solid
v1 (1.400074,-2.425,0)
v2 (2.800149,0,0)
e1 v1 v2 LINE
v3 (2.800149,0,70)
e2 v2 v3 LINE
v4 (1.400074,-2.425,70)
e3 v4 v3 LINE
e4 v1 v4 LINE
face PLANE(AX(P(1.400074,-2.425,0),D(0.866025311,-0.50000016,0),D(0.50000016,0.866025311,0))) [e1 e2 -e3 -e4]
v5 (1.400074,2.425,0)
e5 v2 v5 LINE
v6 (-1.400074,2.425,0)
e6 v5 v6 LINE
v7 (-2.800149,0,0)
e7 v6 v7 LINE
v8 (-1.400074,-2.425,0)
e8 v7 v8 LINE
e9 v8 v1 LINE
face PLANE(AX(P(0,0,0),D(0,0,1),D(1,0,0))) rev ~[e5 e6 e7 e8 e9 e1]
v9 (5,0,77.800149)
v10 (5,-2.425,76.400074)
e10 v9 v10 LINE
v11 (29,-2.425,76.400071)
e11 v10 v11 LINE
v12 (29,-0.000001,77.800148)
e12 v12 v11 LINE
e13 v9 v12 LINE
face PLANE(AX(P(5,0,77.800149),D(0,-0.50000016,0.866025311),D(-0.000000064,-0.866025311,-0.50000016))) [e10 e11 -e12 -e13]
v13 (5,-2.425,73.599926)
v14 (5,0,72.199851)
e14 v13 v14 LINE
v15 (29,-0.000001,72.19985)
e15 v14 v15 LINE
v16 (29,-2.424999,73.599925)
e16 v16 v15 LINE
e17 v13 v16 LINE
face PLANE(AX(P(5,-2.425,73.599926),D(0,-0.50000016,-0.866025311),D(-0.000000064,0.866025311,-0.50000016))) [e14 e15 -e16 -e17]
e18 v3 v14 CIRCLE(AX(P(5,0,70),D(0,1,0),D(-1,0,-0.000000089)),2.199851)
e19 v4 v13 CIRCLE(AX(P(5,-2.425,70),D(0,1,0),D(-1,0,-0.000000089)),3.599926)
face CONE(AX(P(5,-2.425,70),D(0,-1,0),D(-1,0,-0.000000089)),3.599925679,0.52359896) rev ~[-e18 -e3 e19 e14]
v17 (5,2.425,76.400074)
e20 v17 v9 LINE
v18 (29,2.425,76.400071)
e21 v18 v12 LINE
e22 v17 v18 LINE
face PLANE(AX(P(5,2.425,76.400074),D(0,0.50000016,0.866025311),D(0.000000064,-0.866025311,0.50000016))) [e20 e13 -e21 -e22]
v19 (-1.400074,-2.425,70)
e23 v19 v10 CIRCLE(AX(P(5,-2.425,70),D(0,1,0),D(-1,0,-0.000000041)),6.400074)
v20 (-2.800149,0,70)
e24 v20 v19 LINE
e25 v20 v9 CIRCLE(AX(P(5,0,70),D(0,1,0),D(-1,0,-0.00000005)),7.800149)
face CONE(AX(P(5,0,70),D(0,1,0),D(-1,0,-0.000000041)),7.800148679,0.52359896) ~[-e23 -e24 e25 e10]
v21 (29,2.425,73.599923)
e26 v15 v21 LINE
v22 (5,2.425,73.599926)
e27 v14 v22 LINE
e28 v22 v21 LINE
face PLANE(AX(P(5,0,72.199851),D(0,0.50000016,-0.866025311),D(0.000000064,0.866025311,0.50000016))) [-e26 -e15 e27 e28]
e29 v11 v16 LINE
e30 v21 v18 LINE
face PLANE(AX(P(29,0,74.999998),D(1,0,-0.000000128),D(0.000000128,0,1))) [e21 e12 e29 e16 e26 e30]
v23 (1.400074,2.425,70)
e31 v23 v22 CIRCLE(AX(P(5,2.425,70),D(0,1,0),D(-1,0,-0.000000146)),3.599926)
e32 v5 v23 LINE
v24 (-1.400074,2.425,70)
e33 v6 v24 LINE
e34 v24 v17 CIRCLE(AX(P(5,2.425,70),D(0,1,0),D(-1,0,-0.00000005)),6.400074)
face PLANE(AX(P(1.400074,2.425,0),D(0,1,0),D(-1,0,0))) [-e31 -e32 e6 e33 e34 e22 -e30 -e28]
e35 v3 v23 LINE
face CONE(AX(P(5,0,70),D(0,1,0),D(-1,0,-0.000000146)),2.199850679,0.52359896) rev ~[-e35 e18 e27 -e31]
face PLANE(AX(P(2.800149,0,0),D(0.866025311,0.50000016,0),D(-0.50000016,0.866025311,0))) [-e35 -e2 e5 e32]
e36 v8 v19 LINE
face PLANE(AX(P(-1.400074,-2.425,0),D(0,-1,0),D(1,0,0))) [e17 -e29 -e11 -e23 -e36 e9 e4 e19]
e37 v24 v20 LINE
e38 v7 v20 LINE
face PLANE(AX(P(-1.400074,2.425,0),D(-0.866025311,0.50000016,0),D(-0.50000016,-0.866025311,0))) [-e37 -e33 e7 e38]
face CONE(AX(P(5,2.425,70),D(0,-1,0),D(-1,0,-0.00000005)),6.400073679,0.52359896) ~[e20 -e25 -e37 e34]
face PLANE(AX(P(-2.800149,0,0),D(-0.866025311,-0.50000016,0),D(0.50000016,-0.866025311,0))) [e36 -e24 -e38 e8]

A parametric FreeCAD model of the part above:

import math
import FreeCAD as App
import Part
import Sketcher
Q = App.Units.Quantity


def add_polygon(sketch, points):
    """Adds a closed chain of lines whose ends are joined by coincident constraints."""
    first, n = sketch.GeometryCount, len(points)
    for a, b in zip(points, points[1:] + points[:1]):
        sketch.addGeometry(Part.LineSegment(App.Vector(*a, 0), App.Vector(*b, 0)), False)
    for i in range(n):
        sketch.addConstraint(Sketcher.Constraint("Coincident", first + i, 2, first + (i + 1) % n, 1))

doc = App.newDocument("Part")
body = doc.addObject("PartDesign::Body", "Body")

# Sketch on XY plane
sketch1 = body.newObject("Sketcher::SketchObject", "Sketch")
sketch1.AttachmentSupport = (doc.getObject("XY_Plane"), [""])
sketch1.MapMode = "FlatFace"
add_polygon(sketch1, [(-1.4, 2.4), (-2.8, 0), (-1.4, -2.4), (1.4, -2.4), (2.8, 0), (1.4, 2.4)])  # lines 0-5
sketch1.addConstraint([
    Sketcher.Constraint("Horizontal", 2),
    Sketcher.Constraint("Horizontal", 5),
    Sketcher.Constraint("Symmetric", 0, 2, 3, 2, -1, 1),
    Sketcher.Constraint("Symmetric", 1, 2, 4, 2, -1, 1),
    Sketcher.Constraint("PointOnObject", 0, 2, -1),
    Sketcher.Constraint("Parallel", 0, 3),
    Sketcher.Constraint("Vertical", 2, 2, 4, 2),
    Sketcher.Constraint("Angle", 0, Q("-120.000011 deg")),
    Sketcher.Constraint("DistanceY", 2, 2, 4, 2, 4.85),
    Sketcher.Constraint("DistanceX", 2, 1, 2, 2, 2.800148),
])

# Sketch on XZ plane
sketch2 = body.newObject("Sketcher::SketchObject", "Sketch001")
sketch2.AttachmentSupport = (doc.getObject("XZ_Plane"), [""])
sketch2.MapMode = "FlatFace"
sketch2.addGeometry([
    Part.LineSegment(App.Vector(0, 0, 0), App.Vector(0, 70, 0)),
    Part.ArcOfCircle(Part.Circle(App.Vector(5, 70, 0), App.Vector(0, 0, 1), 5), math.radians(90), math.radians(180)),
    Part.LineSegment(App.Vector(5, 75, 0), App.Vector(29, 75, 0)),
], False)
sketch2.addConstraint([
    Sketcher.Constraint("Tangent", 0, 2, 1, 2),
    Sketcher.Constraint("Tangent", 1, 1, 2, 1),
    Sketcher.Constraint("Vertical", 0),
    Sketcher.Constraint("Horizontal", 2),
    Sketcher.Constraint("Coincident", 0, 1, -1, 1),
    Sketcher.Constraint("Radius", 1, 5.0),
    Sketcher.Constraint("DistanceX", 2, 1, 2, 2, 24.0),
    Sketcher.Constraint("DistanceY", 0, 1, 0, 2, 70.0),
])
doc.recompute()

additivepipe = body.newObject("PartDesign::AdditivePipe", "AdditivePipe")
additivepipe.Profile = sketch1
additivepipe.Spine = (sketch2, ["Edge1", "Edge2", "Edge3"])

doc.recompute()
